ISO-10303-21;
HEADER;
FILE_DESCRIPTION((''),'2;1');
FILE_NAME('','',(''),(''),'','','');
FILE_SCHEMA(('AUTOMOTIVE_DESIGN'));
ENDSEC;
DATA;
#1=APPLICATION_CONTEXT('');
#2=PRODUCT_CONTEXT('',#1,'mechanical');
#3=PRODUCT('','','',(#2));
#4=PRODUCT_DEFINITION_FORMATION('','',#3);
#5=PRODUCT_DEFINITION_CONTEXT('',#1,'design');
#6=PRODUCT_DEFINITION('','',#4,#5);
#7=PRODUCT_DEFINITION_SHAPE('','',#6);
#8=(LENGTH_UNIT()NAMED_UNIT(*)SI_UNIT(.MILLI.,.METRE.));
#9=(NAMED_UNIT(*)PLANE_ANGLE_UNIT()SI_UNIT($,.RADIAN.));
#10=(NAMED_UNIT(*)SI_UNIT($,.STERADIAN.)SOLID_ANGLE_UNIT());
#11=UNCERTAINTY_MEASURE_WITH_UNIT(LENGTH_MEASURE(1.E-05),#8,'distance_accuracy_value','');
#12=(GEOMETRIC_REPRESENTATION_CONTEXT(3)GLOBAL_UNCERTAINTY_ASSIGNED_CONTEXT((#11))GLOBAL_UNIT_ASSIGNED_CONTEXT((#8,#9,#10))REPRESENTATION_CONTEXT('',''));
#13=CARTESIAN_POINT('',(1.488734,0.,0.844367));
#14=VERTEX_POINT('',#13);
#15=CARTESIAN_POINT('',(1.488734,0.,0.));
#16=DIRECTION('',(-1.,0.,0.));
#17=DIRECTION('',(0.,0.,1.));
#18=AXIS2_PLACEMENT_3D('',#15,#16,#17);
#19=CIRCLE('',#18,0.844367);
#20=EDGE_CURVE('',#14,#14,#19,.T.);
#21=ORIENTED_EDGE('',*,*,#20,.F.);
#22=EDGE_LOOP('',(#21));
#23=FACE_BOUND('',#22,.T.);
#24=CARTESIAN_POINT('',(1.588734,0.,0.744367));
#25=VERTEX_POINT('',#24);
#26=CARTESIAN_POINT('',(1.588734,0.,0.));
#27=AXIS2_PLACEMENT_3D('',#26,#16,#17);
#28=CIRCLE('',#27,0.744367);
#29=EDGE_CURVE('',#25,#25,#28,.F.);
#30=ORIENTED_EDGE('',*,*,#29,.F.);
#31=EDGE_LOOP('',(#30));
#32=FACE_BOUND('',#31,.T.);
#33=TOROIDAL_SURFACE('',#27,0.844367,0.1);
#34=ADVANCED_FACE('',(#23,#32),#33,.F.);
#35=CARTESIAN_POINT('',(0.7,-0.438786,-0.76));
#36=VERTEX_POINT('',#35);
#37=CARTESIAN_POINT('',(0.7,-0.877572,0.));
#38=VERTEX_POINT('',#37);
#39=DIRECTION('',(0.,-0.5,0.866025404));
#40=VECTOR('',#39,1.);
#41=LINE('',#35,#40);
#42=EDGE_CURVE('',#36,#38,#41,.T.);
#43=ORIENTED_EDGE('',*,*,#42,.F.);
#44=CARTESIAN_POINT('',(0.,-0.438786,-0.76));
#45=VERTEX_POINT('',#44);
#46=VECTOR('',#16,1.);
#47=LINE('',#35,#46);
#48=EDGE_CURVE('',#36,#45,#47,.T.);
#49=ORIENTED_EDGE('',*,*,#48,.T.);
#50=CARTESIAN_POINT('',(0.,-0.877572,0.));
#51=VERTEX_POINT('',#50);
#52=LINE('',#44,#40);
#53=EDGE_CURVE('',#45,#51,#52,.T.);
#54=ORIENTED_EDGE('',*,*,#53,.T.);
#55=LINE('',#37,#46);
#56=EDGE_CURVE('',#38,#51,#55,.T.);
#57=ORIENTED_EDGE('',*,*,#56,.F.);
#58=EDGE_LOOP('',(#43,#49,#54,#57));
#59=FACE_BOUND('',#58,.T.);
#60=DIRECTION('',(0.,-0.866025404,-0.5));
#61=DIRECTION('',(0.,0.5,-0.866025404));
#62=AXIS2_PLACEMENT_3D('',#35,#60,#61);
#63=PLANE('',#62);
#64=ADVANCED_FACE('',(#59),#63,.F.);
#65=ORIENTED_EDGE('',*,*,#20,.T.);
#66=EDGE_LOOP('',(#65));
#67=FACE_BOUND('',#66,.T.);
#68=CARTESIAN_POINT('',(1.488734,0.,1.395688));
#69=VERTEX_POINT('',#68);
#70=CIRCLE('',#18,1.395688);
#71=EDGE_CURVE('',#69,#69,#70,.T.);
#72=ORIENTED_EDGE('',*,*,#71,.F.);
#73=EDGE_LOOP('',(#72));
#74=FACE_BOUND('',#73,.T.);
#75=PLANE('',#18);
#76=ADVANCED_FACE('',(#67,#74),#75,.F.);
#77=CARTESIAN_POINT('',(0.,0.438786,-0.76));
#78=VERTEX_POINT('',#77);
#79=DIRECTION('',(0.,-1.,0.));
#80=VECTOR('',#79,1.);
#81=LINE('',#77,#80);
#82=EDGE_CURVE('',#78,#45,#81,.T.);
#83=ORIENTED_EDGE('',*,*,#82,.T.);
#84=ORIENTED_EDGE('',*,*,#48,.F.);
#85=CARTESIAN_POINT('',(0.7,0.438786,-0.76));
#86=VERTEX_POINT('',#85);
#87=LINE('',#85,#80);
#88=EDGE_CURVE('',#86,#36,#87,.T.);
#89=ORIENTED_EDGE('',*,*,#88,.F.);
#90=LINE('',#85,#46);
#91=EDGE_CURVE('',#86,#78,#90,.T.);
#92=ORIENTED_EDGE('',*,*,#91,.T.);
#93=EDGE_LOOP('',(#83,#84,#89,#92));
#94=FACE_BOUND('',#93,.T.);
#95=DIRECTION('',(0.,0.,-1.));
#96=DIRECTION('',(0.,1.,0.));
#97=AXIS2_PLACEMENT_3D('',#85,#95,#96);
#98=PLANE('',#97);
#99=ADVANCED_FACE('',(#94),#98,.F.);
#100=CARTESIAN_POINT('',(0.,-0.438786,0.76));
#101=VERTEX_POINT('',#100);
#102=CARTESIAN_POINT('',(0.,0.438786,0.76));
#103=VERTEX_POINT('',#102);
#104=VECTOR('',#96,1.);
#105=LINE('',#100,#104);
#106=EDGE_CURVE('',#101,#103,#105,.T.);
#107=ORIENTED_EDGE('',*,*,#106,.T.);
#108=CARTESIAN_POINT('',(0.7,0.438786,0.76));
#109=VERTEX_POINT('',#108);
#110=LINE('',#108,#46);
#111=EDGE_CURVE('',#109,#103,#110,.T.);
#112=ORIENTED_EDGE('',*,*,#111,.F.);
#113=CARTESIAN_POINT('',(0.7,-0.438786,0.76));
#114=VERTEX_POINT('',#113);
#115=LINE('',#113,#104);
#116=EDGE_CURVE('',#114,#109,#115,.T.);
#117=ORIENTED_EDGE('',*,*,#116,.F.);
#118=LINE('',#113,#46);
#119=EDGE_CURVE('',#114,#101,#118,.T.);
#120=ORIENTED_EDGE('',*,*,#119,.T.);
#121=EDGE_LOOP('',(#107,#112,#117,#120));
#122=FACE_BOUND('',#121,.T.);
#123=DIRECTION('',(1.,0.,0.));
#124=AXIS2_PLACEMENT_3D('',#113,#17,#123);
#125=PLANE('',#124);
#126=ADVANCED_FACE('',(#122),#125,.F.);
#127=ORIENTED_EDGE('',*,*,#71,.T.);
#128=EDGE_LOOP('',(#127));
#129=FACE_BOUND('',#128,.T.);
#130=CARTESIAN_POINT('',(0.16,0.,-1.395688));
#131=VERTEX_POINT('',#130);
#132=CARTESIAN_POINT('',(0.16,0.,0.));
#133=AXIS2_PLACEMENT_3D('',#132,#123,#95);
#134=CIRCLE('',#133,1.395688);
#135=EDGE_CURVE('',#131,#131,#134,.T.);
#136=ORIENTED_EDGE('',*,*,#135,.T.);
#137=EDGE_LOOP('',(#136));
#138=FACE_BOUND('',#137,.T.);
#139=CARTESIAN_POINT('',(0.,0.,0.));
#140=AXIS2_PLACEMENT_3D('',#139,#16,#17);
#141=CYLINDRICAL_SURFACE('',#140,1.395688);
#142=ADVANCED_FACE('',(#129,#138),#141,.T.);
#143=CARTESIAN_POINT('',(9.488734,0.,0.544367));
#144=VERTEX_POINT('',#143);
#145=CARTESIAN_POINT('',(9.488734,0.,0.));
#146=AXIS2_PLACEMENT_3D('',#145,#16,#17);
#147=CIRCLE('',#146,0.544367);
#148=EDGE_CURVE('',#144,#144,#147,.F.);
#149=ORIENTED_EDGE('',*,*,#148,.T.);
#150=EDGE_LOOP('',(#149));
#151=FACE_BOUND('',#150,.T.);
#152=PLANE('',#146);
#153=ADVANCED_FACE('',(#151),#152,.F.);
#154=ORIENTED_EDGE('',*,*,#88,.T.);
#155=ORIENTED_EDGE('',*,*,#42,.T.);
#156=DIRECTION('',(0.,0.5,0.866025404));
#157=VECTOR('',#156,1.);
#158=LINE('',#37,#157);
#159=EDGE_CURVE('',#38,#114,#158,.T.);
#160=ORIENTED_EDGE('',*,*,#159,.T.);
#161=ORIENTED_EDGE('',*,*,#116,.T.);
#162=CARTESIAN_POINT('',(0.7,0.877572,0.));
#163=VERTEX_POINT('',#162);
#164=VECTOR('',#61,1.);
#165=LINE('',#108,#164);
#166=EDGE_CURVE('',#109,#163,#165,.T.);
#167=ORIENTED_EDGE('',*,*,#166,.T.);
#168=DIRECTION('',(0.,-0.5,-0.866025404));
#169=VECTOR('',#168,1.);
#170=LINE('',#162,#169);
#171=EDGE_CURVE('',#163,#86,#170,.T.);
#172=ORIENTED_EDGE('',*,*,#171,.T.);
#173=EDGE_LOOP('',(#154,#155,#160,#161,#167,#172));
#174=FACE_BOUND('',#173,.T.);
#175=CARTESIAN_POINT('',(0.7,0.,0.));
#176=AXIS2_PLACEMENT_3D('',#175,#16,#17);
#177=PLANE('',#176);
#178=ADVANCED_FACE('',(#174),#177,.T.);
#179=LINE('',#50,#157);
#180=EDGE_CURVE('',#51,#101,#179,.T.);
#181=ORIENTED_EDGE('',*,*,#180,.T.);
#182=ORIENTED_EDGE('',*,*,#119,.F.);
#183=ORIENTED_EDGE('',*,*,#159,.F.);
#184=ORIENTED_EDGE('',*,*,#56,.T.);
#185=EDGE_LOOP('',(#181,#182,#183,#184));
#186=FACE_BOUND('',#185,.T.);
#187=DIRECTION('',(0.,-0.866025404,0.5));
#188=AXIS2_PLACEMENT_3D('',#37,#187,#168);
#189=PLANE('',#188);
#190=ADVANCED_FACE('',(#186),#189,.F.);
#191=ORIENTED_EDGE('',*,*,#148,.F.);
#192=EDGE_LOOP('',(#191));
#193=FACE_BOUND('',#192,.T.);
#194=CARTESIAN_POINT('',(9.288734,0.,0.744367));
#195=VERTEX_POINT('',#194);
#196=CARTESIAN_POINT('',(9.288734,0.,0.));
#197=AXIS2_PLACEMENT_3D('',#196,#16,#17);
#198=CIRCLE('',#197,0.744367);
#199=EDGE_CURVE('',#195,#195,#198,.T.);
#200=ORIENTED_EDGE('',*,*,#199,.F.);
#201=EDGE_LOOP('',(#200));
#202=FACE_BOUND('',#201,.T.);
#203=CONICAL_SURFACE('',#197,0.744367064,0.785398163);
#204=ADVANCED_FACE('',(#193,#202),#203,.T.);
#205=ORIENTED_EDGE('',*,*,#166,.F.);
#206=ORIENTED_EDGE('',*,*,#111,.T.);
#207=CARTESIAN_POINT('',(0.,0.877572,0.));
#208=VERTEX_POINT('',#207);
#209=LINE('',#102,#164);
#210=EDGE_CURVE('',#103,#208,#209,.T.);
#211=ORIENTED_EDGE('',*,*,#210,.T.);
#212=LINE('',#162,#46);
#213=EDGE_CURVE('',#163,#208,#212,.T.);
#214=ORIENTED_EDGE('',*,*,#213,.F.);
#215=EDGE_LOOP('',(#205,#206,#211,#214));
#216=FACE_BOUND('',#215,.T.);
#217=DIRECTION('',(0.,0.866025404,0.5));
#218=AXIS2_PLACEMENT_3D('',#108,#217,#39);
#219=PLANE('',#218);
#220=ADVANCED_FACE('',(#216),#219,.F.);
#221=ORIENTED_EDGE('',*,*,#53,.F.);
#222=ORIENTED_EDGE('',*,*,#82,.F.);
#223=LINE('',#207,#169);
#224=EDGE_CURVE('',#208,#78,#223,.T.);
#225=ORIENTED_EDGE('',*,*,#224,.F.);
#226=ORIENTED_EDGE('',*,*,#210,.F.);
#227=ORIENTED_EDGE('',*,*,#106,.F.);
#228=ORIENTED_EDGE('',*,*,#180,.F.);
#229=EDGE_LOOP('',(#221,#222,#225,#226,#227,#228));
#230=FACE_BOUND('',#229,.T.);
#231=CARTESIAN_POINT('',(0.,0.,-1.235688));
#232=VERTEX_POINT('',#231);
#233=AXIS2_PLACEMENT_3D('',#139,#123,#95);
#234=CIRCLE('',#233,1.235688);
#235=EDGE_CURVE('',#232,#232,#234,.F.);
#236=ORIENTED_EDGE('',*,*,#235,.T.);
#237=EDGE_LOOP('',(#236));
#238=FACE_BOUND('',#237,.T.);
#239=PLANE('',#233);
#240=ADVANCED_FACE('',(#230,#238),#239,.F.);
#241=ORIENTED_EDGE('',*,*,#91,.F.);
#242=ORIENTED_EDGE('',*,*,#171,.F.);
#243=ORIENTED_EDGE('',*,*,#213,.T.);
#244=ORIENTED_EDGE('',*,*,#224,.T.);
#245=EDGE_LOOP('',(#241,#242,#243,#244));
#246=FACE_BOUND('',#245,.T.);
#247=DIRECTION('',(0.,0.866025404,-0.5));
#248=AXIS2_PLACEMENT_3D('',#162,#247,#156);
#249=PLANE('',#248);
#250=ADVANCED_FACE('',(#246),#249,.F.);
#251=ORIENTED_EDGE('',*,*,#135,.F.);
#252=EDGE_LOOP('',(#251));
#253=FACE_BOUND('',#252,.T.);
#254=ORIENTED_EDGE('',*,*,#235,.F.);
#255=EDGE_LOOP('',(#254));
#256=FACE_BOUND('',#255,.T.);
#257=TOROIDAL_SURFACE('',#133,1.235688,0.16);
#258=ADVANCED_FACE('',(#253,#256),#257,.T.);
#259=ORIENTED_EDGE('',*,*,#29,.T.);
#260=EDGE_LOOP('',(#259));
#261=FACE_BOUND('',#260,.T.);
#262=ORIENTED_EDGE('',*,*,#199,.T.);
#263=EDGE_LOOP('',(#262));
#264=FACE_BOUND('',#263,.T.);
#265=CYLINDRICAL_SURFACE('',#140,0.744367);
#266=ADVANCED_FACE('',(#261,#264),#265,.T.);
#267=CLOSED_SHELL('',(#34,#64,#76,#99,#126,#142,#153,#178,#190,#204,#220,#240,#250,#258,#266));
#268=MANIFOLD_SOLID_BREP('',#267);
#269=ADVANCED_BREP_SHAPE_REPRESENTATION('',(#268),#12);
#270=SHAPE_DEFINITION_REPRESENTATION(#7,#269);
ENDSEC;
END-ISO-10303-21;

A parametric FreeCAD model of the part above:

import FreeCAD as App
import Part
import Sketcher
from FreeCAD import Vector
Q = App.Units.Quantity


def edges_at(feature, points):
    """Names of the edges that pass closest to the given points."""
    edges = feature.Shape.Edges
    near = lambda p: min(range(len(edges)), key=lambda i: edges[i].distToShape(Part.Vertex(*p))[0])
    return sorted({f"Edge{near(p) + 1}" for p in points})

doc = App.newDocument("Part")
body = doc.addObject("PartDesign::Body", "Body")

# Sketch on XY plane
sketch1 = doc.addObject("Sketcher::SketchObject", "Sketch")
body.addObject(sketch1)
sketch1.AttachmentSupport = (doc.XY_Plane, [""])
sketch1.MapMode = "FlatFace"
sketch1.addGeometry(Part.LineSegment(Vector(0, 1.4, 0), Vector(0, 0, 0)), False)
sketch1.addGeometry(Part.LineSegment(Vector(0, 0, 0), Vector(9.5, 0, 0)), False)
sketch1.addGeometry(Part.LineSegment(Vector(9.5, 0, 0), Vector(9.5, 0.7, 0)), False)
sketch1.addGeometry(Part.LineSegment(Vector(9.5, 0.7, 0), Vector(1.5, 0.7, 0)), False)
sketch1.addGeometry(Part.LineSegment(Vector(1.5, 0.7, 0), Vector(1.5, 1.4, 0)), False)
sketch1.addGeometry(Part.LineSegment(Vector(1.5, 1.4, 0), Vector(0, 1.4, 0)), False)
sketch1.addConstraint(Sketcher.Constraint("Coincident", 0, 2, 1, 1))
sketch1.addConstraint(Sketcher.Constraint("Coincident", 1, 2, 2, 1))
sketch1.addConstraint(Sketcher.Constraint("Coincident", 2, 2, 3, 1))
sketch1.addConstraint(Sketcher.Constraint("Coincident", 3, 2, 4, 1))
sketch1.addConstraint(Sketcher.Constraint("Coincident", 4, 2, 5, 1))
sketch1.addConstraint(Sketcher.Constraint("Coincident", 5, 2, 0, 1))
sketch1.addConstraint(Sketcher.Constraint("Vertical", 0))
sketch1.addConstraint(Sketcher.Constraint("Horizontal", 1))
sketch1.addConstraint(Sketcher.Constraint("Vertical", 2))
sketch1.addConstraint(Sketcher.Constraint("Horizontal", 3))
sketch1.addConstraint(Sketcher.Constraint("Vertical", 4))
sketch1.addConstraint(Sketcher.Constraint("Horizontal", 5))
sketch1.addConstraint(Sketcher.Constraint("Coincident", 0, 2, -1, 1))
sketch1.addConstraint(Sketcher.Constraint("DistanceX", 3, 2, 3, 1, 8.0))
sketch1.addConstraint(Sketcher.Constraint("DistanceY", 0, 2, 0, 1, 1.395688))
sketch1.addConstraint(Sketcher.Constraint("DistanceY", 4, 1, 4, 2, 0.651321))
sketch1.addConstraint(Sketcher.Constraint("DistanceX", 1, 1, 1, 2, 9.488734))
revolution = doc.addObject("PartDesign::Revolution", "Revolution")
body.addObject(revolution)
revolution.Profile = sketch1
revolution.ReferenceAxis = (sketch1, ["H_Axis"])
revolution.Angle = 360
doc.recompute()

fillet = doc.addObject("PartDesign::Fillet", "Fillet")
body.addObject(fillet)
fillet.Base = (revolution, edges_at(revolution, [(1.489, 0, -0.744)]))
fillet.Radius = 0.1
doc.recompute()

fillet2 = doc.addObject("PartDesign::Fillet", "Fillet001")
body.addObject(fillet2)
fillet2.Base = (fillet, edges_at(fillet, [(0, 0, -1.396)]))
fillet2.Radius = 0.16
doc.recompute()

chamfer = doc.addObject("PartDesign::Chamfer", "Chamfer")
body.addObject(chamfer)
chamfer.Base = (fillet2, edges_at(fillet2, [(9.489, 0, -0.744)]))
chamfer.Size = 0.2

# Sketch on YZ plane
sketch2 = doc.addObject("Sketcher::SketchObject", "Sketch001")
body.addObject(sketch2)
sketch2.AttachmentSupport = (doc.YZ_Plane, [""])
sketch2.MapMode = "FlatFace"
sketch2.addGeometry(Part.LineSegment(Vector(0.9, 0, 0), Vector(0.4, -0.8, 0)), False)
sketch2.addGeometry(Part.LineSegment(Vector(0.4, -0.8, 0), Vector(-0.4, -0.8, 0)), False)
sketch2.addGeometry(Part.LineSegment(Vector(-0.4, -0.8, 0), Vector(-0.9, 0, 0)), False)
sketch2.addGeometry(Part.LineSegment(Vector(-0.9, 0, 0), Vector(-0.4, 0.8, 0)), False)
sketch2.addGeometry(Part.LineSegment(Vector(-0.4, 0.8, 0), Vector(0.4, 0.8, 0)), False)
sketch2.addGeometry(Part.LineSegment(Vector(0.4, 0.8, 0), Vector(0.9, 0, 0)), False)
sketch2.addConstraint(Sketcher.Constraint("Coincident", 0, 2, 1, 1))
sketch2.addConstraint(Sketcher.Constraint("Coincident", 1, 2, 2, 1))
sketch2.addConstraint(Sketcher.Constraint("Coincident", 2, 2, 3, 1))
sketch2.addConstraint(Sketcher.Constraint("Coincident", 3, 2, 4, 1))
sketch2.addConstraint(Sketcher.Constraint("Coincident", 4, 2, 5, 1))
sketch2.addConstraint(Sketcher.Constraint("Coincident", 5, 2, 0, 1))
sketch2.addConstraint(Sketcher.Constraint("Horizontal", 1))
sketch2.addConstraint(Sketcher.Constraint("Horizontal", 4))
sketch2.addConstraint(Sketcher.Constraint("Symmetric", 0, 2, 3, 2, -1, 1))
sketch2.addConstraint(Sketcher.Constraint("Symmetric", 2, 2, 5, 2, -1, 1))
sketch2.addConstraint(Sketcher.Constraint("PointOnObject", 2, 2, -1))
sketch2.addConstraint(Sketcher.Constraint("Parallel", 2, 5))
sketch2.addConstraint(Sketcher.Constraint("Vertical", 1, 2, 3, 2))
sketch2.addConstraint(Sketcher.Constraint("Angle", 0, Q("-120 deg")))
sketch2.addConstraint(Sketcher.Constraint("DistanceY", 0, 2, -1, 1, 0.76))
sketch2.addConstraint(Sketcher.Constraint("DistanceX", 1, 2, 1, 1, 0.877572))
pocket1 = doc.addObject("PartDesign::Pocket", "Pocket")
body.addObject(pocket1)
pocket1.Profile = sketch2
pocket1.Length = 0.7
pocket1.Reversed = True

doc.recompute()
